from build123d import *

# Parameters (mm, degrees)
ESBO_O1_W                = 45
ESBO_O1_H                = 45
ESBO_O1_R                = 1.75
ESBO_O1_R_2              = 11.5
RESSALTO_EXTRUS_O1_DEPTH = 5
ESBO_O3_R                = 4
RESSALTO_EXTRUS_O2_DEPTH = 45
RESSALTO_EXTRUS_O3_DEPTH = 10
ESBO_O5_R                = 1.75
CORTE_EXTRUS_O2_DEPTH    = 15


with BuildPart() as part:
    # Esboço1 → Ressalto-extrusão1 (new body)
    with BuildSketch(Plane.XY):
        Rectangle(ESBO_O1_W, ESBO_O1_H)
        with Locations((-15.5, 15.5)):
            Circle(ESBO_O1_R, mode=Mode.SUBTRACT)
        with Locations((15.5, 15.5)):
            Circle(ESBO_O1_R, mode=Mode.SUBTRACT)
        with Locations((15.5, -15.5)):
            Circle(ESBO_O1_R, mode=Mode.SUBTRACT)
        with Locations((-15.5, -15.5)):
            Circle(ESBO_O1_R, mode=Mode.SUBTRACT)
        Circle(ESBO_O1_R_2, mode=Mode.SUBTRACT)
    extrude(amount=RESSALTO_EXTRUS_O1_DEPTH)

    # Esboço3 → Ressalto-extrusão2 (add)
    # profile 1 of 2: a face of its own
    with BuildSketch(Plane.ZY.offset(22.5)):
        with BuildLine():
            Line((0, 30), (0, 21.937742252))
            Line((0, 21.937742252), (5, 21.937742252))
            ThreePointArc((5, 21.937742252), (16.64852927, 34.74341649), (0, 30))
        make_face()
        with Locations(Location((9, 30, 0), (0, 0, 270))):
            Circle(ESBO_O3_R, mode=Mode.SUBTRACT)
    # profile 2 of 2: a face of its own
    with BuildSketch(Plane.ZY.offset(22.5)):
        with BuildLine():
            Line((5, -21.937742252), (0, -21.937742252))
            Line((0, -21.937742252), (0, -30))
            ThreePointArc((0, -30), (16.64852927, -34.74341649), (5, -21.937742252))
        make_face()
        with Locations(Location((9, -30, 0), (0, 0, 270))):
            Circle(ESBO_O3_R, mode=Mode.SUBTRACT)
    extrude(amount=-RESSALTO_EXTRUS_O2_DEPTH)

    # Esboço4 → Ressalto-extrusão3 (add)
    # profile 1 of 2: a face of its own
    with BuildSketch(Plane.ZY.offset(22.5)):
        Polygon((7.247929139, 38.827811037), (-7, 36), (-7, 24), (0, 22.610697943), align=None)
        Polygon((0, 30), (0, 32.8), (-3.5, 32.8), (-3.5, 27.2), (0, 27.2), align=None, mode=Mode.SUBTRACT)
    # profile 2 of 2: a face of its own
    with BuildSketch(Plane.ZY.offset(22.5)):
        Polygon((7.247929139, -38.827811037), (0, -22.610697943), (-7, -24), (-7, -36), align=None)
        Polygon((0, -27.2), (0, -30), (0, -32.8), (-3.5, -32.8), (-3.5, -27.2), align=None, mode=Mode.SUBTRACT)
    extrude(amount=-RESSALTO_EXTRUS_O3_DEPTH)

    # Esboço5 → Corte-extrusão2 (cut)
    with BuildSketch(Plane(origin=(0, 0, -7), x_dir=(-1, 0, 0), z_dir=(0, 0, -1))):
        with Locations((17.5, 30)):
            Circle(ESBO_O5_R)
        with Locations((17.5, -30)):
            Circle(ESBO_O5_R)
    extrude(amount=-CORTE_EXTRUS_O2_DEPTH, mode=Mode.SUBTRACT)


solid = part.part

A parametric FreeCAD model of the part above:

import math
import FreeCAD as App
import Part
import Sketcher

doc = App.newDocument("Part")
body = doc.addObject("PartDesign::Body", "Body")

# Sketch on XY plane
sketch1 = body.newObject("Sketcher::SketchObject", "Sketch")
sketch1.AttachmentSupport = (doc.getObject("XY_Plane"), [""])
sketch1.MapMode = "FlatFace"
sketch1.addGeometry([
    Part.LineSegment(App.Vector(-22.5, 22.5, 0), App.Vector(-22.5, -22.5, 0)),  # 0
    Part.LineSegment(App.Vector(-22.5, -22.5, 0), App.Vector(22.5, -22.5, 0)),  # 1
    Part.LineSegment(App.Vector(22.5, -22.5, 0), App.Vector(22.5, 22.5, 0)),  # 2
    Part.LineSegment(App.Vector(22.5, 22.5, 0), App.Vector(-22.5, 22.5, 0)),  # 3
    Part.Circle(App.Vector(-15.5, -15.5, 0), App.Vector(0, 0, 1), 1.75),  # 4
    Part.Circle(App.Vector(15.5, -15.5, 0), App.Vector(0, 0, 1), 1.75),  # 5
    Part.Circle(App.Vector(-15.5, 15.5, 0), App.Vector(0, 0, 1), 1.75),  # 6
    Part.Circle(App.Vector(0, 0, 0), App.Vector(0, 0, 1), 11.5),  # 7
    Part.Circle(App.Vector(15.5, 15.5, 0), App.Vector(0, 0, 1), 1.75),  # 8
], False)
sketch1.addConstraint([
    Sketcher.Constraint("Coincident", 0, 2, 1, 1),
    Sketcher.Constraint("Coincident", 1, 2, 2, 1),
    Sketcher.Constraint("Coincident", 2, 2, 3, 1),
    Sketcher.Constraint("Coincident", 3, 2, 0, 1),
    Sketcher.Constraint("Vertical", 0),
    Sketcher.Constraint("Horizontal", 1),
    Sketcher.Constraint("Vertical", 2),
    Sketcher.Constraint("Horizontal", 3),
    Sketcher.Constraint("Coincident", 7, 3, -1, 1),
    Sketcher.Constraint("Equal", 4, 5),
    Sketcher.Constraint("Equal", 5, 6),
    Sketcher.Constraint("Equal", 6, 8),
    Sketcher.Constraint("Symmetric", 5, 3, 6, 3, -1, 1),
    Sketcher.Constraint("Symmetric", 4, 3, 8, 3, -1, 1),
    Sketcher.Constraint("Symmetric", 0, 2, 2, 2, -1, 1),
    Sketcher.Constraint("Symmetric", 4, 3, 5, 3, -2),
    Sketcher.Constraint("Equal", 3, 0),
    Sketcher.Constraint("Diameter", 7, 23.0),
    Sketcher.Constraint("Diameter", 4, 3.5),
    Sketcher.Constraint("DistanceX", 1, 1, 1, 2, 45.0),
    Sketcher.Constraint("DistanceX", 4, 3, 5, 3, 31.0),
    Sketcher.Constraint("DistanceY", 4, 3, 6, 3, 31.0),
])
pad1 = body.newObject("PartDesign::Pad", "Pad")
pad1.Profile = sketch1
pad1.Length = 5

# Sketch on YZ plane
sketch2 = body.newObject("Sketcher::SketchObject", "Sketch001")
sketch2.AttachmentSupport = (doc.getObject("YZ_Plane"), [""])
sketch2.MapMode = "FlatFace"
sketch2.AttachmentOffset = App.Placement(App.Vector(0, 0, -22.5), App.Rotation())
sketch2.addGeometry([
    Part.LineSegment(App.Vector(30, 0, 0), App.Vector(21.937742, 0, 0)),  # 0
    Part.LineSegment(App.Vector(21.937742, 0, 0), App.Vector(21.937742, 5, 0)),  # 1
    Part.ArcOfCircle(Part.Circle(App.Vector(30, 9, 0), App.Vector(0, 0, 1), 9), math.radians(-90), math.radians(206.3878)),  # 2
    Part.Circle(App.Vector(30, 9, 0), App.Vector(0, 0, 1), 4),  # 3
    Part.LineSegment(App.Vector(-21.937742, 5, 0), App.Vector(-21.937742, 0, 0)),  # 4
    Part.LineSegment(App.Vector(-21.937742, 0, 0), App.Vector(-30, 0, 0)),  # 5
    Part.ArcOfCircle(Part.Circle(App.Vector(-30, 9, 0), App.Vector(0, 0, 1), 9), math.radians(-26.3878), math.radians(270)),  # 6
    Part.Circle(App.Vector(-30, 9, 0), App.Vector(0, 0, 1), 4),  # 7
], False)
sketch2.addConstraint([
    Sketcher.Constraint("Coincident", 0, 2, 1, 1),
    Sketcher.Constraint("Coincident", 1, 2, 2, 2),
    Sketcher.Constraint("Tangent", 2, 1, 0, 1),
    Sketcher.Constraint("Coincident", 4, 2, 5, 1),
    Sketcher.Constraint("Tangent", 5, 2, 6, 2),
    Sketcher.Constraint("Coincident", 6, 1, 4, 1),
    Sketcher.Constraint("Horizontal", 0),
    Sketcher.Constraint("Vertical", 1),
    Sketcher.Constraint("Vertical", 4),
    Sketcher.Constraint("Horizontal", 5),
    Sketcher.Constraint("Coincident", 3, 3, 2, 3),
    Sketcher.Constraint("Coincident", 7, 3, 6, 3),
    Sketcher.Constraint("Equal", 2, 6),
    Sketcher.Constraint("Equal", 3, 7),
    Sketcher.Constraint("Symmetric", 0, 2, 4, 2, -1, 1),
    Sketcher.Constraint("Symmetric", 2, 3, 6, 3, -2),
    Sketcher.Constraint("Diameter", 3, 8.0),
    Sketcher.Constraint("Radius", 2, 9.0),
    Sketcher.Constraint("DistanceY", 1, 1, 1, 2, 5.0),
    Sketcher.Constraint("DistanceX", -1, 1, 2, 3, 30.0),
])
pad2 = body.newObject("PartDesign::Pad", "Pad001")
pad2.Profile = sketch2
pad2.Length = 45

# Sketch on YZ plane
sketch3 = body.newObject("Sketcher::SketchObject", "Sketch002")
sketch3.AttachmentSupport = (doc.getObject("YZ_Plane"), [""])
sketch3.MapMode = "FlatFace"
sketch3.AttachmentOffset = App.Placement(App.Vector(0, 0, -22.5), App.Rotation())
sketch3.addGeometry([
    Part.LineSegment(App.Vector(38.827811, 7.247929, 0), App.Vector(36, -7, 0)),  # 0
    Part.LineSegment(App.Vector(36, -7, 0), App.Vector(24, -7, 0)),  # 1
    Part.LineSegment(App.Vector(24, -7, 0), App.Vector(22.610698, 0, 0)),  # 2
    Part.LineSegment(App.Vector(22.610698, 0, 0), App.Vector(38.827811, 7.247929, 0)),  # 3
    Part.LineSegment(App.Vector(32.8, 0, 0), App.Vector(27.2, 0, 0)),  # 4
    Part.LineSegment(App.Vector(27.2, 0, 0), App.Vector(27.2, -3.5, 0)),  # 5
    Part.LineSegment(App.Vector(27.2, -3.5, 0), App.Vector(32.8, -3.5, 0)),  # 6
    Part.LineSegment(App.Vector(32.8, -3.5, 0), App.Vector(32.8, 0, 0)),  # 7
    Part.LineSegment(App.Vector(-38.827811, 7.247929, 0), App.Vector(-22.610698, 0, 0)),  # 8
    Part.LineSegment(App.Vector(-22.610698, 0, 0), App.Vector(-24, -7, 0)),  # 9
    Part.LineSegment(App.Vector(-24, -7, 0), App.Vector(-36, -7, 0)),  # 10
    Part.LineSegment(App.Vector(-36, -7, 0), App.Vector(-38.827811, 7.247929, 0)),  # 11
    Part.LineSegment(App.Vector(-27.2, -3.5, 0), App.Vector(-27.2, 0, 0)),  # 12
    Part.LineSegment(App.Vector(-27.2, 0, 0), App.Vector(-32.8, 0, 0)),  # 13
    Part.LineSegment(App.Vector(-32.8, 0, 0), App.Vector(-32.8, -3.5, 0)),  # 14
    Part.LineSegment(App.Vector(-32.8, -3.5, 0), App.Vector(-27.2, -3.5, 0)),  # 15
], False)
sketch3.addConstraint([
    Sketcher.Constraint("Coincident", 0, 2, 1, 1),
    Sketcher.Constraint("Coincident", 1, 2, 2, 1),
    Sketcher.Constraint("Coincident", 2, 2, 3, 1),
    Sketcher.Constraint("Coincident", 3, 2, 0, 1),
    Sketcher.Constraint("Coincident", 4, 2, 5, 1),
    Sketcher.Constraint("Coincident", 5, 2, 6, 1),
    Sketcher.Constraint("Coincident", 6, 2, 7, 1),
    Sketcher.Constraint("Coincident", 7, 2, 4, 1),
    Sketcher.Constraint("Coincident", 8, 2, 9, 1),
    Sketcher.Constraint("Coincident", 9, 2, 10, 1),
    Sketcher.Constraint("Coincident", 10, 2, 11, 1),
    Sketcher.Constraint("Coincident", 11, 2, 8, 1),
    Sketcher.Constraint("Coincident", 12, 2, 13, 1),
    Sketcher.Constraint("Coincident", 13, 2, 14, 1),
    Sketcher.Constraint("Coincident", 14, 2, 15, 1),
    Sketcher.Constraint("Coincident", 15, 2, 12, 1),
    Sketcher.Constraint("Horizontal", 1),
    Sketcher.Constraint("Horizontal", 4),
    Sketcher.Constraint("Vertical", 5),
    Sketcher.Constraint("Horizontal", 6),
    Sketcher.Constraint("Vertical", 7),
    Sketcher.Constraint("Horizontal", 10),
    Sketcher.Constraint("Vertical", 12),
    Sketcher.Constraint("Horizontal", 13),
    Sketcher.Constraint("Vertical", 14),
    Sketcher.Constraint("Horizontal", 15),
    Sketcher.Constraint("Symmetric", 2, 2, 8, 2, -1, 1),
    Sketcher.Constraint("Symmetric", 4, 2, 12, 2, -1, 1),
    Sketcher.Constraint("Symmetric", 1, 2, 9, 2, -2),
    Sketcher.Constraint("Symmetric", 3, 2, 11, 2, -2),
    Sketcher.Constraint("Symmetric", 7, 2, 13, 2, -2),
    Sketcher.Constraint("PointOnObject", 2, 2, -1),
    Sketcher.Constraint("Parallel", 0, 9),
    Sketcher.Constraint("Parallel", 2, 11),
    Sketcher.Constraint("Horizontal", 6, 2, 14, 2),
    Sketcher.Constraint("DistanceX", 1, 2, 1, 1, 12.0),
    Sketcher.Constraint("DistanceX", 4, 2, 4, 1, 5.6),
    Sketcher.Constraint("DistanceY", 5, 2, 5, 1, 3.5),
    Sketcher.Constraint("DistanceX", -1, 1, 0, 2, 36.0),
    Sketcher.Constraint("DistanceY", 0, 2, -1, 1, 7.0),
    Sketcher.Constraint("DistanceX", -1, 1, 4, 2, 27.2),
    Sketcher.Constraint("Distance", 0, 14.525839),
    Sketcher.Constraint("DistanceX", -1, 1, 3, 2, 38.827811),
])
pad3 = body.newObject("PartDesign::Pad", "Pad002")
pad3.Profile = sketch3
pad3.Length = 10

# Sketch on XY plane
sketch4 = body.newObject("Sketcher::SketchObject", "Sketch003")
sketch4.AttachmentSupport = (doc.getObject("XY_Plane"), [""])
sketch4.MapMode = "FlatFace"
sketch4.AttachmentOffset = App.Placement(App.Vector(0, 0, -7), App.Rotation())
sketch4.addGeometry([
    Part.Circle(App.Vector(-17.5, 30, 0), App.Vector(0, 0, 1), 1.75),
    Part.Circle(App.Vector(-17.5, -30, 0), App.Vector(0, 0, 1), 1.75),
], False)
sketch4.addConstraint([
    Sketcher.Constraint("Equal", 0, 1),
    Sketcher.Constraint("Symmetric", 0, 3, 1, 3, -1),
    Sketcher.Constraint("Diameter", 0, 3.5),
    Sketcher.Constraint("DistanceY", -1, 1, 0, 3, 30.0),
    Sketcher.Constraint("DistanceX", 0, 3, -1, 1, 17.5),
])
pocket1 = body.newObject("PartDesign::Pocket", "Pocket")
pocket1.Profile = sketch4
pocket1.Length = 15
pocket1.Reversed = True

doc.recompute()
